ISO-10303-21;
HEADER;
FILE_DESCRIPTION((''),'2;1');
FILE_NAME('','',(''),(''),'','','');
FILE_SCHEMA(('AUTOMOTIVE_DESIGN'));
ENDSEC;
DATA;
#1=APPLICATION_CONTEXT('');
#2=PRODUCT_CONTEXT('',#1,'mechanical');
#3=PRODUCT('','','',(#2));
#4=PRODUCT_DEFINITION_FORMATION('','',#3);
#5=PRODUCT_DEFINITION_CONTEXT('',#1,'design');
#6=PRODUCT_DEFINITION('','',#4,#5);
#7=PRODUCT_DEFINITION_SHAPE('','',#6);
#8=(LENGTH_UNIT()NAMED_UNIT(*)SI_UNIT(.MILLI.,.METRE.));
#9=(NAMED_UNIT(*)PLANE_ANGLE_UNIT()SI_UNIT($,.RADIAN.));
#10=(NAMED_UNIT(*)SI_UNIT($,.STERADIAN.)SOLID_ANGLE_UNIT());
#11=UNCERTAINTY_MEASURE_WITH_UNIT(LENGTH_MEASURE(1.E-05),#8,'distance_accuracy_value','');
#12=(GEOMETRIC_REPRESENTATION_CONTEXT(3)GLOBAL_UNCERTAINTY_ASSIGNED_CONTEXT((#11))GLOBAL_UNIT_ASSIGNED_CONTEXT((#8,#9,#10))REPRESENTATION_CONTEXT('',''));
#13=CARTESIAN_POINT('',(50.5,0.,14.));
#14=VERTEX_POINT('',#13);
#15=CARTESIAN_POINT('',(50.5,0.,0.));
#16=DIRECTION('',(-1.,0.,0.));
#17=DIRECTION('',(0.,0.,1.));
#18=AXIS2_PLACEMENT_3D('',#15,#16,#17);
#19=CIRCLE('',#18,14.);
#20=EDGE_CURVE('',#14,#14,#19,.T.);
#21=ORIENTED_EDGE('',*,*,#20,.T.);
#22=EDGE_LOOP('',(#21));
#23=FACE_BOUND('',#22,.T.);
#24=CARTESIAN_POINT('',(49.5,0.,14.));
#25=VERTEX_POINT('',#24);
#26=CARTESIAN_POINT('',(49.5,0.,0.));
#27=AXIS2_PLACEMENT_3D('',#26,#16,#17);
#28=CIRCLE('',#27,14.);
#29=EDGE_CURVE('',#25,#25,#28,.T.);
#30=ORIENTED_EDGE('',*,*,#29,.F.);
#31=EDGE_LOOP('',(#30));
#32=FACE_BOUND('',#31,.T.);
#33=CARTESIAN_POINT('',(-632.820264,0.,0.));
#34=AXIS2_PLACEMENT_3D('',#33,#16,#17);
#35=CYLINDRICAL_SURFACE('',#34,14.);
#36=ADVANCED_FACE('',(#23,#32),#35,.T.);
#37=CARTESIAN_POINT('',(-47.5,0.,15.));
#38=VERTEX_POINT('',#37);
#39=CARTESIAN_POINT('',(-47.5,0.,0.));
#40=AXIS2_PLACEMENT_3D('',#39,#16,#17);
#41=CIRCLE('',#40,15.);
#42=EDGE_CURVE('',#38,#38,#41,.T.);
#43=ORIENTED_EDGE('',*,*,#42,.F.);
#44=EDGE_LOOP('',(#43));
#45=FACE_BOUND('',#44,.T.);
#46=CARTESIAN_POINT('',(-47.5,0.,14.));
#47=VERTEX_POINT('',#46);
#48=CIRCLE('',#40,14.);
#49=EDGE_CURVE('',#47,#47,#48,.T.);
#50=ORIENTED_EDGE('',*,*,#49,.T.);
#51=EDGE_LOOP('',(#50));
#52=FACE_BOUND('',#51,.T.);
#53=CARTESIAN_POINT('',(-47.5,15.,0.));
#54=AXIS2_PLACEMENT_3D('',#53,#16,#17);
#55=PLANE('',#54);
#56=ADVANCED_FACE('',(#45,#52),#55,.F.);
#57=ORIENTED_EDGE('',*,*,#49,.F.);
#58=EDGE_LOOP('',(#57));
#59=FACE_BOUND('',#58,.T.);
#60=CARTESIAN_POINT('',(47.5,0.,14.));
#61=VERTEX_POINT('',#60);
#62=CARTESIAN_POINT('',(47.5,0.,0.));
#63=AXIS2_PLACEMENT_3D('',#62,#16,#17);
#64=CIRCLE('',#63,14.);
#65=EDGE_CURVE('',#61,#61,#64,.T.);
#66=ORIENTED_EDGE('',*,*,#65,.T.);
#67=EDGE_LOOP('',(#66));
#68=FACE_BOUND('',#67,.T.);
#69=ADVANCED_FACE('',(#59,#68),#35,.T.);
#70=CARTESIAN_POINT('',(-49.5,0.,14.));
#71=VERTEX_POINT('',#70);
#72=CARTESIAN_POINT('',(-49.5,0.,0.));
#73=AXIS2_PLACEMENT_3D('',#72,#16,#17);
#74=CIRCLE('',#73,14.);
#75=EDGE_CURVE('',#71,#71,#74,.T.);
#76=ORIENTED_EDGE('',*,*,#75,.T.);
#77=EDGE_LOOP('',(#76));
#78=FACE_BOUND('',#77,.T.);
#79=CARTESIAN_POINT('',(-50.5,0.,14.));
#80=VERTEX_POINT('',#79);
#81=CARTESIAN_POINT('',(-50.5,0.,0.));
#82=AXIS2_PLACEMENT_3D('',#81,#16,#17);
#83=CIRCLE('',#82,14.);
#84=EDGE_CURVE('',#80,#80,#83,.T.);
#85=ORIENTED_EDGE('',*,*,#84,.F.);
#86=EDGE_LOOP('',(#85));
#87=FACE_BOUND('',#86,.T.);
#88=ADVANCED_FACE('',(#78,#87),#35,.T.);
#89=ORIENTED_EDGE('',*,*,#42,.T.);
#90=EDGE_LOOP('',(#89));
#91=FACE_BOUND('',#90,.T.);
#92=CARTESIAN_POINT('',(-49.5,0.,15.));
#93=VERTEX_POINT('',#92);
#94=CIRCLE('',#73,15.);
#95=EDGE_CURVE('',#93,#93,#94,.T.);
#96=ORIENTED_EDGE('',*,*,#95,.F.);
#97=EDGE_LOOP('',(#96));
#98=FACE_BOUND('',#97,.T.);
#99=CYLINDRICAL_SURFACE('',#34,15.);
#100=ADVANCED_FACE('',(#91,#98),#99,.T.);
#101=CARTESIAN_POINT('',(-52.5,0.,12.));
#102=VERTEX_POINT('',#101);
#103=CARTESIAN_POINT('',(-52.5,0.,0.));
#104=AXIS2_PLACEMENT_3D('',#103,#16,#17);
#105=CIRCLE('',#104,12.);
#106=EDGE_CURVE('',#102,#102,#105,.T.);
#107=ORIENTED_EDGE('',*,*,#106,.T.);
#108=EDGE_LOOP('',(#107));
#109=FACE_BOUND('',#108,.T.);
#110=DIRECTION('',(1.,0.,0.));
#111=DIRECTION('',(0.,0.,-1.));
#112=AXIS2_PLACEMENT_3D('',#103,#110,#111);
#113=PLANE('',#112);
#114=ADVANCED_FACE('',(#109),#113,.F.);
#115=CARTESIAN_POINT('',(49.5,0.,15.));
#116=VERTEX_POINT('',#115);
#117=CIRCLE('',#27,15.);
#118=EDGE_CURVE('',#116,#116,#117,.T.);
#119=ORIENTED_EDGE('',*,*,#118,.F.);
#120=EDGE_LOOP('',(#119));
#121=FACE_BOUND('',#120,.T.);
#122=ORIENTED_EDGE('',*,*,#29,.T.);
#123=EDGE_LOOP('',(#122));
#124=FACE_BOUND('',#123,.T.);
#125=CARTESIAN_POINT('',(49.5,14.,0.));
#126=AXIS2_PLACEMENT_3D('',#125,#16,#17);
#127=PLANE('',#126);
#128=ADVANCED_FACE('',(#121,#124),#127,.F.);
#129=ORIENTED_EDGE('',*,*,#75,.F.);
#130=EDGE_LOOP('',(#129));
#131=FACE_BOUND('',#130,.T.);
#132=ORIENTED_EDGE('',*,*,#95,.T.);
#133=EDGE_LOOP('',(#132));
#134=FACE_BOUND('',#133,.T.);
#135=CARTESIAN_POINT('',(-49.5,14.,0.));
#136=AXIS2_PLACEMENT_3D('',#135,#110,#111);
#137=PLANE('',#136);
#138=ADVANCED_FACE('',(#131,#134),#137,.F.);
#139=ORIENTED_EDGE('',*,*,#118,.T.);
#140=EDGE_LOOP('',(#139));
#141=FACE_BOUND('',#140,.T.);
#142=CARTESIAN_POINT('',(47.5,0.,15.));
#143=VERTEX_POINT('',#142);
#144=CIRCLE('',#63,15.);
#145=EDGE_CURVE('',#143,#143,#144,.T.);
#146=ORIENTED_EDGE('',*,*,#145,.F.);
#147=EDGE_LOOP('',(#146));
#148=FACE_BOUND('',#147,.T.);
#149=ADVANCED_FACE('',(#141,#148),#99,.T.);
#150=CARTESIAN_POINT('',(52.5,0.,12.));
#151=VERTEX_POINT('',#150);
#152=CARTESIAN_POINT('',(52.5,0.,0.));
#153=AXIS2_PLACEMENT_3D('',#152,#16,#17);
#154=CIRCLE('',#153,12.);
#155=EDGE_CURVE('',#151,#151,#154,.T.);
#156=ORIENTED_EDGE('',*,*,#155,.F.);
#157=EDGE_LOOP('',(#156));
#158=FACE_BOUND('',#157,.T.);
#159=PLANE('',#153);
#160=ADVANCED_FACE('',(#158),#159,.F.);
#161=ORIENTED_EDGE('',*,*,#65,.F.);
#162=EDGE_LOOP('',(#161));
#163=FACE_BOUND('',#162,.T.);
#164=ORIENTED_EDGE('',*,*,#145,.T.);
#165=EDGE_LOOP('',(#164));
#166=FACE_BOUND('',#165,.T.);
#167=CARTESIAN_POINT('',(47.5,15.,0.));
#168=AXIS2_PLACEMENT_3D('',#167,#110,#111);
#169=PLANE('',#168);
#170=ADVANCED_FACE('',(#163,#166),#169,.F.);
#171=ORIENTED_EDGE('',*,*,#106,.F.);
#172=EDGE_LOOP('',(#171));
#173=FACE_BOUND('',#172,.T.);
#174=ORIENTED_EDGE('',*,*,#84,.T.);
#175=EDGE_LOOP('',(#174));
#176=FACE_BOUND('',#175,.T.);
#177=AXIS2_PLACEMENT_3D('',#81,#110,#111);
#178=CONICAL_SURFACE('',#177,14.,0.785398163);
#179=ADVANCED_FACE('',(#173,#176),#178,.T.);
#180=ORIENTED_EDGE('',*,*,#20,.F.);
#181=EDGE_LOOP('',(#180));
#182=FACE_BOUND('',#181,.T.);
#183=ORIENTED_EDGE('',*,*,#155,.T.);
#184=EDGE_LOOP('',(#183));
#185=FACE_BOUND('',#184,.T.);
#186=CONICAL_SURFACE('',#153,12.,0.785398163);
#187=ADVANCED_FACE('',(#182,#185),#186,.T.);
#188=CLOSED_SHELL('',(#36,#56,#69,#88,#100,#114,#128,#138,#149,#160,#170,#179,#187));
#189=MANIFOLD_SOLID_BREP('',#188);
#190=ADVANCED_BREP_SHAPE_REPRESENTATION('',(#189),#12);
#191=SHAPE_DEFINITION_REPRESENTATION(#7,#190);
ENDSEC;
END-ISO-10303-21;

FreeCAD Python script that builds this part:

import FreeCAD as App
import Part
import Sketcher

V = App.Vector
Q = App.Units.Quantity


def add_polygon(sketch, points):
    """Adds a closed chain of lines whose ends are joined by coincident constraints."""
    first, n = sketch.GeometryCount, len(points)
    for a, b in zip(points, points[1:] + points[:1]):
        sketch.addGeometry(Part.LineSegment(App.Vector(*a, 0), App.Vector(*b, 0)), False)
    for i in range(n):
        sketch.addConstraint(Sketcher.Constraint("Coincident", first + i, 2, first + (i + 1) % n, 1))

doc = App.newDocument("Part")
body = doc.addObject("PartDesign::Body", "Body")

# Sketch on XY plane
sketch1 = body.newObject("Sketcher::SketchObject", "Sketch")
sketch1.AttachmentSupport = (doc.getObject("XY_Plane"), [""])
sketch1.MapMode = "FlatFace"
add_polygon(sketch1, [(-52.5, 0), (52.5, 0), (52.5, 12), (50.5, 14), (49.5, 14), (49.5, 15), (47.5, 15), (47.5, 14), (-47.5, 14), (-47.5, 15), (-49.5, 15), (-49.5, 14), (-50.5, 14), (-52.5, 12)])  # lines 0-13
sketch1.addConstraint(Sketcher.Constraint("Horizontal", 0))
sketch1.addConstraint(Sketcher.Constraint("Vertical", 1))
sketch1.addConstraint(Sketcher.Constraint("Horizontal", 3))
sketch1.addConstraint(Sketcher.Constraint("Vertical", 4))
sketch1.addConstraint(Sketcher.Constraint("Horizontal", 5))
sketch1.addConstraint(Sketcher.Constraint("Vertical", 6))
sketch1.addConstraint(Sketcher.Constraint("Horizontal", 7))
sketch1.addConstraint(Sketcher.Constraint("Vertical", 8))
sketch1.addConstraint(Sketcher.Constraint("Horizontal", 9))
sketch1.addConstraint(Sketcher.Constraint("Vertical", 10))
sketch1.addConstraint(Sketcher.Constraint("Horizontal", 11))
sketch1.addConstraint(Sketcher.Constraint("Vertical", 13))
sketch1.addConstraint(Sketcher.Constraint("Symmetric", 0, 2, 13, 2, -1, 1))
sketch1.addConstraint(Sketcher.Constraint("Symmetric", 5, 2, 8, 2, -2))
sketch1.addConstraint(Sketcher.Constraint("Symmetric", 3, 2, 10, 2, -2))
sketch1.addConstraint(Sketcher.Constraint("Perpendicular", 2, 12))
sketch1.addConstraint(Sketcher.Constraint("Horizontal", 3, 2, 6, 2))
sketch1.addConstraint(Sketcher.Constraint("Horizontal", 1, 2, 12, 2))
sketch1.addConstraint(Sketcher.Constraint("Equal", 3, 11))
sketch1.addConstraint(Sketcher.Constraint("Equal", 11, 4))
sketch1.addConstraint(Sketcher.Constraint("DistanceX", 0, 1, 0, 2, Q("105 mm")))
sketch1.addConstraint(Sketcher.Constraint("DistanceX", 3, 2, 3, 1, Q("1 mm")))
sketch1.addConstraint(Sketcher.Constraint("DistanceX", 5, 2, 5, 1, Q("2 mm")))
sketch1.addConstraint(Sketcher.Constraint("DistanceX", 7, 2, 7, 1, Q("95 mm")))
sketch1.addConstraint(Sketcher.Constraint("DistanceY", 1, 1, 1, 2, Q("12 mm")))
revolution = body.newObject("PartDesign::Revolution", "Revolution")
revolution.Profile = sketch1
revolution.ReferenceAxis = (sketch1, ["H_Axis"])
revolution.Angle = 360

doc.recompute()
